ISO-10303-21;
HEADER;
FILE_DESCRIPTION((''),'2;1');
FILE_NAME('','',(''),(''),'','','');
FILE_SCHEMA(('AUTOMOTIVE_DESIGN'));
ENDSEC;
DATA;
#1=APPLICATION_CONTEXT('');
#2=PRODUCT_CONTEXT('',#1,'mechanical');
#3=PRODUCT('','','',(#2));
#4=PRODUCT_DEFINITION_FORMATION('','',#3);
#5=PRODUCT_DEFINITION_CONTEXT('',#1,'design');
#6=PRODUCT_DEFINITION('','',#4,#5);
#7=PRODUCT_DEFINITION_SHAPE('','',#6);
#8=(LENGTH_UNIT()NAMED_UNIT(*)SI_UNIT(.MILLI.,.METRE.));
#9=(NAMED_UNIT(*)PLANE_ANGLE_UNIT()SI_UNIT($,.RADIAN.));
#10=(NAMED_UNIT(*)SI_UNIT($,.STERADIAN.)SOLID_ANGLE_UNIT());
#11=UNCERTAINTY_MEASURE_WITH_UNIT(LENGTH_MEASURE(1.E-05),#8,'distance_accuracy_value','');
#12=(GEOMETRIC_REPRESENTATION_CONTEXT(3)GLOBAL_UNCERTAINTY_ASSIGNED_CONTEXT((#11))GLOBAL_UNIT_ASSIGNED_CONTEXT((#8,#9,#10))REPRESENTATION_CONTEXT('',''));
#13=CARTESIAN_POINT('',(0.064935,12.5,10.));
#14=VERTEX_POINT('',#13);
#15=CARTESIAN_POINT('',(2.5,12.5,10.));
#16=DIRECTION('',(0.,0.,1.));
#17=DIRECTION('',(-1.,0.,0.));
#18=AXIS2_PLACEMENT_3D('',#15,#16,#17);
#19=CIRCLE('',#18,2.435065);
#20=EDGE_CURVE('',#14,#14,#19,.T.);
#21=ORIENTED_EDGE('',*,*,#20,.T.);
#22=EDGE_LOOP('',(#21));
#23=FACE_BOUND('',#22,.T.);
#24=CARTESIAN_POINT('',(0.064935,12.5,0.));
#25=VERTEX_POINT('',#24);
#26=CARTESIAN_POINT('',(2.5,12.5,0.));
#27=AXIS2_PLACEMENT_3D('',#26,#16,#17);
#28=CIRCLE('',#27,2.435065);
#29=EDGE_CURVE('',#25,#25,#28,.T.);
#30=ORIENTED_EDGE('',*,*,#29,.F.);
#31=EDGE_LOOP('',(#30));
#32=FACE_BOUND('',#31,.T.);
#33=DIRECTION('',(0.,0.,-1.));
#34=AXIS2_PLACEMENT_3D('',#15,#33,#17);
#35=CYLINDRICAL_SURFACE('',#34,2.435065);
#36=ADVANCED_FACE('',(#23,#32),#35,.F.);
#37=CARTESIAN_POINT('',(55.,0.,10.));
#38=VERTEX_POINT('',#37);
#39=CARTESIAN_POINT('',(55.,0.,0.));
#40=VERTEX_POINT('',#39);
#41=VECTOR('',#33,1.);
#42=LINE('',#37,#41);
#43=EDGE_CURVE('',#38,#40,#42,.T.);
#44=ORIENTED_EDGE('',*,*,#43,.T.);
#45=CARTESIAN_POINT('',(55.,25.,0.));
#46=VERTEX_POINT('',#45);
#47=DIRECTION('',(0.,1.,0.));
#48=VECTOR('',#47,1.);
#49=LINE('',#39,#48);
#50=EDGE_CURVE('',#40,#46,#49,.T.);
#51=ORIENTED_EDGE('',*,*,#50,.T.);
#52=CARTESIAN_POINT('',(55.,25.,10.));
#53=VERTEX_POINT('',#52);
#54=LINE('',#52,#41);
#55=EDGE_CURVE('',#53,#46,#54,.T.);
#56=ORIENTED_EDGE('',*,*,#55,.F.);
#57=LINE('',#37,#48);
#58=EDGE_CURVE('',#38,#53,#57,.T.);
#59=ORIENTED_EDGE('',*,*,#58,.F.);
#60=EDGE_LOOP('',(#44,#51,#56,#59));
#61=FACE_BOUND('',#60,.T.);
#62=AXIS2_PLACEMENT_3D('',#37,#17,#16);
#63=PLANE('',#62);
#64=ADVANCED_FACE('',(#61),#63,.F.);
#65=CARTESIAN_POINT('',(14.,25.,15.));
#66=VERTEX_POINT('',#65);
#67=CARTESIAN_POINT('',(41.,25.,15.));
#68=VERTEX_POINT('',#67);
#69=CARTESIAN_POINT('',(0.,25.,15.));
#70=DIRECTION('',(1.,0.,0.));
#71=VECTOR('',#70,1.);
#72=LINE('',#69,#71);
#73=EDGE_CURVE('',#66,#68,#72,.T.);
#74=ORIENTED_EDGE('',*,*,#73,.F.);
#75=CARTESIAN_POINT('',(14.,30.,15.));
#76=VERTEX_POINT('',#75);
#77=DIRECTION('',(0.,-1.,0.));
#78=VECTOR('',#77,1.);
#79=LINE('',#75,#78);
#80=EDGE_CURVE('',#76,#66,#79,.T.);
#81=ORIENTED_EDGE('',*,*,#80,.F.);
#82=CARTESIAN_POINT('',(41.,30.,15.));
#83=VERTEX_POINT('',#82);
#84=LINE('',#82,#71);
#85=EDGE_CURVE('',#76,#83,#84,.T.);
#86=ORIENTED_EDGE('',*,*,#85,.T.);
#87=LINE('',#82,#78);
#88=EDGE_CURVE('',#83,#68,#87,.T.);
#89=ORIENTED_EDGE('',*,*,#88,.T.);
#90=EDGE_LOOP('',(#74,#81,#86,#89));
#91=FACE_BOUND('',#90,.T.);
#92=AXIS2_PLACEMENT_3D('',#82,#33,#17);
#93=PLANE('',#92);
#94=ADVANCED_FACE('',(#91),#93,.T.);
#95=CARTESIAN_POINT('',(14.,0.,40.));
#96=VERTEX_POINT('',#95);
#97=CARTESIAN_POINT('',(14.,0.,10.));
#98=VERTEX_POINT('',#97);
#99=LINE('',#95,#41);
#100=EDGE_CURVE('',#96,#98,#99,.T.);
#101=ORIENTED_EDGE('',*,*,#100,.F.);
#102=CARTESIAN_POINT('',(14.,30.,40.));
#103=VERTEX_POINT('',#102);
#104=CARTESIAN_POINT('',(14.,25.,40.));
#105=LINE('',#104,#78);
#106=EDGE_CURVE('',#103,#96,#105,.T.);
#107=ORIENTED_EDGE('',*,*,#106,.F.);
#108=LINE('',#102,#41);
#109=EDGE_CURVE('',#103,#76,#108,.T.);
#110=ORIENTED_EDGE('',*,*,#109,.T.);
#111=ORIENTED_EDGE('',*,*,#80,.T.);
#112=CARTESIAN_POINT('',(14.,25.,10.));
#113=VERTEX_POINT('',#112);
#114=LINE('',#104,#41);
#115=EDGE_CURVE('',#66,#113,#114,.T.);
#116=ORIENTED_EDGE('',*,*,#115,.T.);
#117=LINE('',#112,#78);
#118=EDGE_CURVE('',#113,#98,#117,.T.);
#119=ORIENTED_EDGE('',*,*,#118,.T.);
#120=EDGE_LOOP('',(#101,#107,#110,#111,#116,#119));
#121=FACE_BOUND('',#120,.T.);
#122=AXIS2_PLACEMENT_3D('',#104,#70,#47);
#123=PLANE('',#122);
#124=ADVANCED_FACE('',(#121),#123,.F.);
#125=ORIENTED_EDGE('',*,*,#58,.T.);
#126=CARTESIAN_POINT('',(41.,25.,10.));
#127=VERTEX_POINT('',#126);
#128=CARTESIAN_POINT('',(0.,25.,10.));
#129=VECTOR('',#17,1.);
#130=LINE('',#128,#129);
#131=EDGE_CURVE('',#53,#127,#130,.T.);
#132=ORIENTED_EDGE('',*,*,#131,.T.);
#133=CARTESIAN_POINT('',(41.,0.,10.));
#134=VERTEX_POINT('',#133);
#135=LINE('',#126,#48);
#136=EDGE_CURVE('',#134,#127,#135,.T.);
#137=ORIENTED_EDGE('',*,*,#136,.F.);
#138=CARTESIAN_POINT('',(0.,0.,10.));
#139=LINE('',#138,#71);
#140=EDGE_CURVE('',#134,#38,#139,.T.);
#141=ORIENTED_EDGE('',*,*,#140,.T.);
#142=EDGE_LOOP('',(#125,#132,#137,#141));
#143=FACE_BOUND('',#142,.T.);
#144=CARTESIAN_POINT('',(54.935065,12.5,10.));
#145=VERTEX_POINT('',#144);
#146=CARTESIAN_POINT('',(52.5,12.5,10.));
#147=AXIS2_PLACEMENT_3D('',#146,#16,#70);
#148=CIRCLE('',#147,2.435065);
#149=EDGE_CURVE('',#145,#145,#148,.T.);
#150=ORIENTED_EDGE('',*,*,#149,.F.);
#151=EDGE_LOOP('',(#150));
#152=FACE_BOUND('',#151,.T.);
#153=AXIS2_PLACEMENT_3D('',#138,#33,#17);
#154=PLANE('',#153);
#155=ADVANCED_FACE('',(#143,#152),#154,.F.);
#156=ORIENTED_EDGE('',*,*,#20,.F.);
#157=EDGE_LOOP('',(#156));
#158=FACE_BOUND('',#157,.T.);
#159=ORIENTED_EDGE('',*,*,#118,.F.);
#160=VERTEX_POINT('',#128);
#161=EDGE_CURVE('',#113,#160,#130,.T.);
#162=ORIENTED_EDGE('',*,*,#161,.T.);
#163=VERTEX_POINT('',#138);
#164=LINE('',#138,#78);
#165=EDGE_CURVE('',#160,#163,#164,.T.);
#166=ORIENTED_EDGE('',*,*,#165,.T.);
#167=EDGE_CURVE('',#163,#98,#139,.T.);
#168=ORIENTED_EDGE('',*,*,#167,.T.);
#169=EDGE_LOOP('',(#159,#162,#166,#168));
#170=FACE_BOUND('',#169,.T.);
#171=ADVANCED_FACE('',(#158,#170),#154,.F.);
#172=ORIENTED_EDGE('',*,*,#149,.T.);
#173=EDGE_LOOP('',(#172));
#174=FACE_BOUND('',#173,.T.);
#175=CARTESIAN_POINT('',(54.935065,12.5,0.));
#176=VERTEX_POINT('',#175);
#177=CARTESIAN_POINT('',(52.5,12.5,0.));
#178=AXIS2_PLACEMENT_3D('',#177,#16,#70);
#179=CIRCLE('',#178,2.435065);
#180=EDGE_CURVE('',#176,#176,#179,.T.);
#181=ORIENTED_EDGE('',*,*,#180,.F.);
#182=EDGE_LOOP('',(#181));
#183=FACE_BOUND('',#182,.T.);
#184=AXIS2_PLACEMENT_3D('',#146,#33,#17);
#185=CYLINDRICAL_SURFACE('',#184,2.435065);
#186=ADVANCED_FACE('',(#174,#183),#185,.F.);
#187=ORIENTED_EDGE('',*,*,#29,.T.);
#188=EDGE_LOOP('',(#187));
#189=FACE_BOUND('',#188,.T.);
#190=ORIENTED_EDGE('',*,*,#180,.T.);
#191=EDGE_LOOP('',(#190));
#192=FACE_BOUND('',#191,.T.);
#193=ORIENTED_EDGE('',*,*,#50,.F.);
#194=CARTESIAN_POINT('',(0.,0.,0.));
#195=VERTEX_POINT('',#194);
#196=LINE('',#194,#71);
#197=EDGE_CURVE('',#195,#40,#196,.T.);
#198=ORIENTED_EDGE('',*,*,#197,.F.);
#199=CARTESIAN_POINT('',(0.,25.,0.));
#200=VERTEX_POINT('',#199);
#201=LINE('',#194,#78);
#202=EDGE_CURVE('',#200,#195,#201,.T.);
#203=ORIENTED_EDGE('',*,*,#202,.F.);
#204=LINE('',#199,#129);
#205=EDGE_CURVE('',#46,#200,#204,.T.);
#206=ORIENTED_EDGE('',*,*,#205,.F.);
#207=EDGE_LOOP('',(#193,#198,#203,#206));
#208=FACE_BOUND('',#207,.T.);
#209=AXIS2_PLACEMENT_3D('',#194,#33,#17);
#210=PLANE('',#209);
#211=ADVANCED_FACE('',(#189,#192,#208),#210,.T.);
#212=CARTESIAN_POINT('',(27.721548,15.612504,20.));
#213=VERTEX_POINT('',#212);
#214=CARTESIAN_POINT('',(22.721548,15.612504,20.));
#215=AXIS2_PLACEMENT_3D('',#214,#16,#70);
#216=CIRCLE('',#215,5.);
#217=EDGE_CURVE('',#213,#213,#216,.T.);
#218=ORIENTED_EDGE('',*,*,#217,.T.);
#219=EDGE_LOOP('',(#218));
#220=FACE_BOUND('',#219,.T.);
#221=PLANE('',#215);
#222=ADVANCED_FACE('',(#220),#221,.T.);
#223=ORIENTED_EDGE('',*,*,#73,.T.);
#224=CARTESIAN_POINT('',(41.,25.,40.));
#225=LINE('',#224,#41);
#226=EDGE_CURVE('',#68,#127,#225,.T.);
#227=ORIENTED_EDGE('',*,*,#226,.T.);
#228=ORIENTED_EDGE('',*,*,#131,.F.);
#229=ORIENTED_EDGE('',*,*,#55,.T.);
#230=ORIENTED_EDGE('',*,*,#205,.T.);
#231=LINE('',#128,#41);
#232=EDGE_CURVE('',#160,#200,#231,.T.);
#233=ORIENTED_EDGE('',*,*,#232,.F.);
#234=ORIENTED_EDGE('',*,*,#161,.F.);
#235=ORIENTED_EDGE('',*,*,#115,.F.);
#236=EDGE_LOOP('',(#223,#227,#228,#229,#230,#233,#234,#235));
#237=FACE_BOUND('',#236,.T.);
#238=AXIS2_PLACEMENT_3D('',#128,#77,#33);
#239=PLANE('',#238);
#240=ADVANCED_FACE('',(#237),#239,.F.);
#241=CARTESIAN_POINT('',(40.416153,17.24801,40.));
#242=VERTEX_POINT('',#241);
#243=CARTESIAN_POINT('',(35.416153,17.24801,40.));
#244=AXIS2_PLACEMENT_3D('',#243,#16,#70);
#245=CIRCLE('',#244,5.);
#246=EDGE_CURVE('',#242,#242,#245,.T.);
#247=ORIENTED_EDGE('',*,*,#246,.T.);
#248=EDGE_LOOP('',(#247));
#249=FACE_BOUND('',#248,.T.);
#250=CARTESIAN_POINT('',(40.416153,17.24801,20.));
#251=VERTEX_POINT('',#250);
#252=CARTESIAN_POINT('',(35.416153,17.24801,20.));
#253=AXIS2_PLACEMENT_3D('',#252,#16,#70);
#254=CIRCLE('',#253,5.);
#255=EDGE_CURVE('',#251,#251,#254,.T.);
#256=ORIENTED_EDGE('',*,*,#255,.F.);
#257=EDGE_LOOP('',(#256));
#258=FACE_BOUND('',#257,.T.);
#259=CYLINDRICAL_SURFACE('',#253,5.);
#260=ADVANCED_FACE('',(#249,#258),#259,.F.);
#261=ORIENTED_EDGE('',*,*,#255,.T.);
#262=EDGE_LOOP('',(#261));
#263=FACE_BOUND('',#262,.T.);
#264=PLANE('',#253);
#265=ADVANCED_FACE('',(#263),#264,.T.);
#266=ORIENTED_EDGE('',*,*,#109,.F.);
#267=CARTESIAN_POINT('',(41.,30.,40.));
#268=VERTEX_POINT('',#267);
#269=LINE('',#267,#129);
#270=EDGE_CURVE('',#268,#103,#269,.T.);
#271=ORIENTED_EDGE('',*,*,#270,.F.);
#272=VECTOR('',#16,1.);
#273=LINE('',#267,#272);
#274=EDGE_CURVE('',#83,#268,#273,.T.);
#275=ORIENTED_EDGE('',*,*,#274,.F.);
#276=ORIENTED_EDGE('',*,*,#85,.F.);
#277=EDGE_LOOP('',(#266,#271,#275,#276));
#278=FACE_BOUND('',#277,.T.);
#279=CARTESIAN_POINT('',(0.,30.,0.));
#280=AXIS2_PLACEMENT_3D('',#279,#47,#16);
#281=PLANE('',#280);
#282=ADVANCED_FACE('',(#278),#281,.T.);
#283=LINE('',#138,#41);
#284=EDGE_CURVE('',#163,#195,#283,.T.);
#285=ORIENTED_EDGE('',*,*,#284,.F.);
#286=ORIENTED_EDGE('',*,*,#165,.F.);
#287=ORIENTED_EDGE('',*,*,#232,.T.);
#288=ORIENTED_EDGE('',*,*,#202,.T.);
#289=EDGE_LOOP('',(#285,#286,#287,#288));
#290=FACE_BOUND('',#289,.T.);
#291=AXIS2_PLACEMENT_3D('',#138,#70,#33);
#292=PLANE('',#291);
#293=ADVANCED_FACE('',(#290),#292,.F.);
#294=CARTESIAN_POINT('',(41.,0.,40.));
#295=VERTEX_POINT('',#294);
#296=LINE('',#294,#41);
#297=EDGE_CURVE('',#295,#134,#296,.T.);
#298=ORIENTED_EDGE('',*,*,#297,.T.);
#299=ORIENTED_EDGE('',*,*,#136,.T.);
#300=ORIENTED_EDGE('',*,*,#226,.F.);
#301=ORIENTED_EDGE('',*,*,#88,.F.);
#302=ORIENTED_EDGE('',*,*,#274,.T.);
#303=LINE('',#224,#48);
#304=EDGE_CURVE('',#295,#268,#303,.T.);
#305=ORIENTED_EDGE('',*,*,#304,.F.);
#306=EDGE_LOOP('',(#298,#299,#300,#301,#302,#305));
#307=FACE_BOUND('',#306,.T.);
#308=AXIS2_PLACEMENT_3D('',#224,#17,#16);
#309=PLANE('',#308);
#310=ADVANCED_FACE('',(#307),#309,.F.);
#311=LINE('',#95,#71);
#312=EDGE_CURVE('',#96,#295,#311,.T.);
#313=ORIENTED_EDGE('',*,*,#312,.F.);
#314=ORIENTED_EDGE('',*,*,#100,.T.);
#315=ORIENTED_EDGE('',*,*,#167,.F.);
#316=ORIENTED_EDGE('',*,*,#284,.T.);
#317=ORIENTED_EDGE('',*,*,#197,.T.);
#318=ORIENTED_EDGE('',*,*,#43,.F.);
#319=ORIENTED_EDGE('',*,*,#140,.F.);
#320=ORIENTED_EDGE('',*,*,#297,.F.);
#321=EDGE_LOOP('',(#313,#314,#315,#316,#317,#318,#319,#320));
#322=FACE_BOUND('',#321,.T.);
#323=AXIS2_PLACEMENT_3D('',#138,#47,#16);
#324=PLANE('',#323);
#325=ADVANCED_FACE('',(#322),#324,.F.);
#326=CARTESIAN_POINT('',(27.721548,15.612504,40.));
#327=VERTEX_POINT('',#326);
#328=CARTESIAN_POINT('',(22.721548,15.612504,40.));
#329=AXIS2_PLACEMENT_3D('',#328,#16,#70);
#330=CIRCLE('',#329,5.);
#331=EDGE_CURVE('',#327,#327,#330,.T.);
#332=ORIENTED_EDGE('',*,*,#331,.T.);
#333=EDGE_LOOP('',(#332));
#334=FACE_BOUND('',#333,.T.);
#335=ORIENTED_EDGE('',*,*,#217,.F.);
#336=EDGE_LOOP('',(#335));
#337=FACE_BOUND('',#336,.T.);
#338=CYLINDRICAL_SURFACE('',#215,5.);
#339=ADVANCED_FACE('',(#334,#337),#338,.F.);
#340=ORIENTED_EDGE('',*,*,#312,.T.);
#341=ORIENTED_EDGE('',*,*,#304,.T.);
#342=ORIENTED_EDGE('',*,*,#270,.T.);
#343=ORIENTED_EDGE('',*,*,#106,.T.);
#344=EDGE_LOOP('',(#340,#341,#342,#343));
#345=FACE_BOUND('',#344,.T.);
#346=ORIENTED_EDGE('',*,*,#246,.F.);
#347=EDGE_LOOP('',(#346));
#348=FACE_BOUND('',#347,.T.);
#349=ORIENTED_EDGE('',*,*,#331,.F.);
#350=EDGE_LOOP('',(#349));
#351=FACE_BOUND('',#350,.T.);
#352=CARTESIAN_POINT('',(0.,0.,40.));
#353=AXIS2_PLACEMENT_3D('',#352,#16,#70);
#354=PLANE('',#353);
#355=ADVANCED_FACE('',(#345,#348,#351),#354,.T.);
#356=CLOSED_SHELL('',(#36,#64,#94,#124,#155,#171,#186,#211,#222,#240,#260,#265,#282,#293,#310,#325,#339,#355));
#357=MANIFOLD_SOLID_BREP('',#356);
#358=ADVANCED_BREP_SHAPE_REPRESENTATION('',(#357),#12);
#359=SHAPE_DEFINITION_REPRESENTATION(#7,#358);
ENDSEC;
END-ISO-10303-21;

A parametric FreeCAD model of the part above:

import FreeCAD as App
import Part
import Sketcher
from FreeCAD import Vector

doc = App.newDocument("Part")
params = doc.addObject("Spreadsheet::Sheet", "Params")
for row, (alias, value) in enumerate([
    ("sketch1_width", "55 mm"),
    ("sketch1_height", "25 mm"),
    ("pad1_length", "10 mm"),
    ("sketch2_width", "27 mm"),
    ("sketch2_height", "25 mm"),
    ("pad2_length", "30 mm"),
    ("sketch3_width", "27 mm"),
    ("sketch3_height", "25 mm"),
    ("pad3_length", "30 mm"),
    ("sketch4_diameter", "10 mm"),
    ("pocket1_length", "20 mm"),
], start=1):
    params.set(f"A{row}", alias)
    params.set(f"B{row}", "=" + value)
    params.setAlias(f"B{row}", alias)

body = doc.addObject("PartDesign::Body", "Body")

sketch1 = body.newObject("Sketcher::SketchObject", "Sketch")
sketch1.AttachmentSupport = (doc.getObject("XY_Plane"), [""])
sketch1.MapMode = "FlatFace"
sketch1.addGeometry([
    Part.LineSegment(Vector(0, 25, 0), Vector(0, 0, 0)),
    Part.LineSegment(Vector(0, 0, 0), Vector(55, 0, 0)),
    Part.LineSegment(Vector(55, 0, 0), Vector(55, 25, 0)),
    Part.LineSegment(Vector(55, 25, 0), Vector(0, 25, 0)),
    Part.Circle(Vector(2.5, 12.5, 0), Vector(0, 0, 1), 2.435065),
    Part.Circle(Vector(52.5, 12.5, 0), Vector(0, 0, 1), 2.435065),
], False)
sketch1.addConstraint([
    Sketcher.Constraint("Coincident", 0, 2, 1, 1),
    Sketcher.Constraint("Coincident", 1, 2, 2, 1),
    Sketcher.Constraint("Coincident", 2, 2, 3, 1),
    Sketcher.Constraint("Coincident", 3, 2, 0, 1),
    Sketcher.Constraint("Vertical", 0),
    Sketcher.Constraint("Horizontal", 1),
    Sketcher.Constraint("Vertical", 2),
    Sketcher.Constraint("Horizontal", 3),
    Sketcher.Constraint("Coincident", 0, 2, -1, 1),
    Sketcher.Constraint("Equal", 4, 5),
    Sketcher.Constraint("Horizontal", 4, 3, 5, 3),
    Sketcher.Constraint("DistanceX", 1, 1, 1, 2, 55.0),
    Sketcher.Constraint("DistanceY", 0, 2, 0, 1, 25.0),
    Sketcher.Constraint("DistanceX", 4, 3, 5, 3, 50.0),
    Sketcher.Constraint("DistanceX", -1, 1, 4, 3, 2.5),
    Sketcher.Constraint("DistanceY", -1, 1, 4, 3, 12.5),
    Sketcher.Constraint("Diameter", 4, 4.87013),
])
sketch1.setExpression("Constraints[11]", "Params.sketch1_width")
sketch1.setExpression("Constraints[12]", "Params.sketch1_height")
pad1 = body.newObject("PartDesign::Pad", "Pad")
pad1.Profile = sketch1
pad1.setExpression("Length", "Params.pad1_length")

sketch2 = body.newObject("Sketcher::SketchObject", "Sketch001")
sketch2.AttachmentSupport = (doc.getObject("XY_Plane"), [""])
sketch2.MapMode = "FlatFace"
sketch2.AttachmentOffset = App.Placement(Vector(0, 0, 10), App.Rotation())
sketch2.addGeometry([
    Part.LineSegment(Vector(14, 25, 0), Vector(14, 0, 0)),
    Part.LineSegment(Vector(14, 0, 0), Vector(41, 0, 0)),
    Part.LineSegment(Vector(41, 0, 0), Vector(41, 25, 0)),
    Part.LineSegment(Vector(41, 25, 0), Vector(14, 25, 0)),
], False)
sketch2.addConstraint([
    Sketcher.Constraint("Coincident", 0, 2, 1, 1),
    Sketcher.Constraint("Coincident", 1, 2, 2, 1),
    Sketcher.Constraint("Coincident", 2, 2, 3, 1),
    Sketcher.Constraint("Coincident", 3, 2, 0, 1),
    Sketcher.Constraint("Vertical", 0),
    Sketcher.Constraint("Horizontal", 1),
    Sketcher.Constraint("Vertical", 2),
    Sketcher.Constraint("Horizontal", 3),
    Sketcher.Constraint("PointOnObject", 0, 2, -1),
    Sketcher.Constraint("DistanceX", 1, 1, 1, 2, 27.0),
    Sketcher.Constraint("DistanceY", 0, 2, 0, 1, 25.0),
    Sketcher.Constraint("DistanceX", -1, 1, 0, 2, 14.0),
])
sketch2.setExpression("Constraints[9]", "Params.sketch2_width")
sketch2.setExpression("Constraints[10]", "Params.sketch2_height")
pad2 = body.newObject("PartDesign::Pad", "Pad001")
pad2.Profile = sketch2
pad2.setExpression("Length", "Params.pad2_length")

sketch3 = body.newObject("Sketcher::SketchObject", "Sketch002")
sketch3.AttachmentSupport = (doc.getObject("XZ_Plane"), [""])
sketch3.MapMode = "FlatFace"
sketch3.addGeometry([
    Part.LineSegment(Vector(14, 40, 0), Vector(14, 15, 0)),
    Part.LineSegment(Vector(14, 15, 0), Vector(41, 15, 0)),
    Part.LineSegment(Vector(41, 15, 0), Vector(41, 40, 0)),
    Part.LineSegment(Vector(41, 40, 0), Vector(14, 40, 0)),
], False)
sketch3.addConstraint([
    Sketcher.Constraint("Coincident", 0, 2, 1, 1),
    Sketcher.Constraint("Coincident", 1, 2, 2, 1),
    Sketcher.Constraint("Coincident", 2, 2, 3, 1),
    Sketcher.Constraint("Coincident", 3, 2, 0, 1),
    Sketcher.Constraint("Vertical", 0),
    Sketcher.Constraint("Horizontal", 1),
    Sketcher.Constraint("Vertical", 2),
    Sketcher.Constraint("Horizontal", 3),
    Sketcher.Constraint("DistanceX", 1, 1, 1, 2, 27.0),
    Sketcher.Constraint("DistanceY", 0, 2, 0, 1, 25.0),
    Sketcher.Constraint("DistanceX", -1, 1, 0, 2, 14.0),
    Sketcher.Constraint("DistanceY", -1, 1, 0, 2, 15.0),
])
sketch3.setExpression("Constraints[8]", "Params.sketch3_width")
sketch3.setExpression("Constraints[9]", "Params.sketch3_height")
pad3 = body.newObject("PartDesign::Pad", "Pad002")
pad3.Profile = sketch3
pad3.setExpression("Length", "Params.pad3_length")
pad3.Reversed = True

sketch4 = body.newObject("Sketcher::SketchObject", "Sketch003")
sketch4.AttachmentSupport = (doc.getObject("XY_Plane"), [""])
sketch4.MapMode = "FlatFace"
sketch4.AttachmentOffset = App.Placement(Vector(0, 0, 40), App.Rotation())
sketch4.addGeometry([
    Part.Circle(Vector(22.721549, 15.612504, 0), Vector(0, 0, 1), 5),
    Part.Circle(Vector(35.416153, 17.24801, 0), Vector(0, 0, 1), 5),
], False)
sketch4.addConstraint([
    Sketcher.Constraint("Equal", 0, 1),
    Sketcher.Constraint("Diameter", 0, 10.0),
    Sketcher.Constraint("DistanceX", -1, 1, 0, 3, 22.721549),
    Sketcher.Constraint("DistanceY", -1, 1, 1, 3, 17.24801),
    Sketcher.Constraint("DistanceY", -1, 1, 0, 3, 15.612504),
    Sketcher.Constraint("DistanceX", -1, 1, 1, 3, 35.416153),
])
sketch4.setExpression("Constraints[1]", "Params.sketch4_diameter")
pocket1 = body.newObject("PartDesign::Pocket", "Pocket")
pocket1.Profile = sketch4
pocket1.setExpression("Length", "Params.pocket1_length")

doc.recompute()
